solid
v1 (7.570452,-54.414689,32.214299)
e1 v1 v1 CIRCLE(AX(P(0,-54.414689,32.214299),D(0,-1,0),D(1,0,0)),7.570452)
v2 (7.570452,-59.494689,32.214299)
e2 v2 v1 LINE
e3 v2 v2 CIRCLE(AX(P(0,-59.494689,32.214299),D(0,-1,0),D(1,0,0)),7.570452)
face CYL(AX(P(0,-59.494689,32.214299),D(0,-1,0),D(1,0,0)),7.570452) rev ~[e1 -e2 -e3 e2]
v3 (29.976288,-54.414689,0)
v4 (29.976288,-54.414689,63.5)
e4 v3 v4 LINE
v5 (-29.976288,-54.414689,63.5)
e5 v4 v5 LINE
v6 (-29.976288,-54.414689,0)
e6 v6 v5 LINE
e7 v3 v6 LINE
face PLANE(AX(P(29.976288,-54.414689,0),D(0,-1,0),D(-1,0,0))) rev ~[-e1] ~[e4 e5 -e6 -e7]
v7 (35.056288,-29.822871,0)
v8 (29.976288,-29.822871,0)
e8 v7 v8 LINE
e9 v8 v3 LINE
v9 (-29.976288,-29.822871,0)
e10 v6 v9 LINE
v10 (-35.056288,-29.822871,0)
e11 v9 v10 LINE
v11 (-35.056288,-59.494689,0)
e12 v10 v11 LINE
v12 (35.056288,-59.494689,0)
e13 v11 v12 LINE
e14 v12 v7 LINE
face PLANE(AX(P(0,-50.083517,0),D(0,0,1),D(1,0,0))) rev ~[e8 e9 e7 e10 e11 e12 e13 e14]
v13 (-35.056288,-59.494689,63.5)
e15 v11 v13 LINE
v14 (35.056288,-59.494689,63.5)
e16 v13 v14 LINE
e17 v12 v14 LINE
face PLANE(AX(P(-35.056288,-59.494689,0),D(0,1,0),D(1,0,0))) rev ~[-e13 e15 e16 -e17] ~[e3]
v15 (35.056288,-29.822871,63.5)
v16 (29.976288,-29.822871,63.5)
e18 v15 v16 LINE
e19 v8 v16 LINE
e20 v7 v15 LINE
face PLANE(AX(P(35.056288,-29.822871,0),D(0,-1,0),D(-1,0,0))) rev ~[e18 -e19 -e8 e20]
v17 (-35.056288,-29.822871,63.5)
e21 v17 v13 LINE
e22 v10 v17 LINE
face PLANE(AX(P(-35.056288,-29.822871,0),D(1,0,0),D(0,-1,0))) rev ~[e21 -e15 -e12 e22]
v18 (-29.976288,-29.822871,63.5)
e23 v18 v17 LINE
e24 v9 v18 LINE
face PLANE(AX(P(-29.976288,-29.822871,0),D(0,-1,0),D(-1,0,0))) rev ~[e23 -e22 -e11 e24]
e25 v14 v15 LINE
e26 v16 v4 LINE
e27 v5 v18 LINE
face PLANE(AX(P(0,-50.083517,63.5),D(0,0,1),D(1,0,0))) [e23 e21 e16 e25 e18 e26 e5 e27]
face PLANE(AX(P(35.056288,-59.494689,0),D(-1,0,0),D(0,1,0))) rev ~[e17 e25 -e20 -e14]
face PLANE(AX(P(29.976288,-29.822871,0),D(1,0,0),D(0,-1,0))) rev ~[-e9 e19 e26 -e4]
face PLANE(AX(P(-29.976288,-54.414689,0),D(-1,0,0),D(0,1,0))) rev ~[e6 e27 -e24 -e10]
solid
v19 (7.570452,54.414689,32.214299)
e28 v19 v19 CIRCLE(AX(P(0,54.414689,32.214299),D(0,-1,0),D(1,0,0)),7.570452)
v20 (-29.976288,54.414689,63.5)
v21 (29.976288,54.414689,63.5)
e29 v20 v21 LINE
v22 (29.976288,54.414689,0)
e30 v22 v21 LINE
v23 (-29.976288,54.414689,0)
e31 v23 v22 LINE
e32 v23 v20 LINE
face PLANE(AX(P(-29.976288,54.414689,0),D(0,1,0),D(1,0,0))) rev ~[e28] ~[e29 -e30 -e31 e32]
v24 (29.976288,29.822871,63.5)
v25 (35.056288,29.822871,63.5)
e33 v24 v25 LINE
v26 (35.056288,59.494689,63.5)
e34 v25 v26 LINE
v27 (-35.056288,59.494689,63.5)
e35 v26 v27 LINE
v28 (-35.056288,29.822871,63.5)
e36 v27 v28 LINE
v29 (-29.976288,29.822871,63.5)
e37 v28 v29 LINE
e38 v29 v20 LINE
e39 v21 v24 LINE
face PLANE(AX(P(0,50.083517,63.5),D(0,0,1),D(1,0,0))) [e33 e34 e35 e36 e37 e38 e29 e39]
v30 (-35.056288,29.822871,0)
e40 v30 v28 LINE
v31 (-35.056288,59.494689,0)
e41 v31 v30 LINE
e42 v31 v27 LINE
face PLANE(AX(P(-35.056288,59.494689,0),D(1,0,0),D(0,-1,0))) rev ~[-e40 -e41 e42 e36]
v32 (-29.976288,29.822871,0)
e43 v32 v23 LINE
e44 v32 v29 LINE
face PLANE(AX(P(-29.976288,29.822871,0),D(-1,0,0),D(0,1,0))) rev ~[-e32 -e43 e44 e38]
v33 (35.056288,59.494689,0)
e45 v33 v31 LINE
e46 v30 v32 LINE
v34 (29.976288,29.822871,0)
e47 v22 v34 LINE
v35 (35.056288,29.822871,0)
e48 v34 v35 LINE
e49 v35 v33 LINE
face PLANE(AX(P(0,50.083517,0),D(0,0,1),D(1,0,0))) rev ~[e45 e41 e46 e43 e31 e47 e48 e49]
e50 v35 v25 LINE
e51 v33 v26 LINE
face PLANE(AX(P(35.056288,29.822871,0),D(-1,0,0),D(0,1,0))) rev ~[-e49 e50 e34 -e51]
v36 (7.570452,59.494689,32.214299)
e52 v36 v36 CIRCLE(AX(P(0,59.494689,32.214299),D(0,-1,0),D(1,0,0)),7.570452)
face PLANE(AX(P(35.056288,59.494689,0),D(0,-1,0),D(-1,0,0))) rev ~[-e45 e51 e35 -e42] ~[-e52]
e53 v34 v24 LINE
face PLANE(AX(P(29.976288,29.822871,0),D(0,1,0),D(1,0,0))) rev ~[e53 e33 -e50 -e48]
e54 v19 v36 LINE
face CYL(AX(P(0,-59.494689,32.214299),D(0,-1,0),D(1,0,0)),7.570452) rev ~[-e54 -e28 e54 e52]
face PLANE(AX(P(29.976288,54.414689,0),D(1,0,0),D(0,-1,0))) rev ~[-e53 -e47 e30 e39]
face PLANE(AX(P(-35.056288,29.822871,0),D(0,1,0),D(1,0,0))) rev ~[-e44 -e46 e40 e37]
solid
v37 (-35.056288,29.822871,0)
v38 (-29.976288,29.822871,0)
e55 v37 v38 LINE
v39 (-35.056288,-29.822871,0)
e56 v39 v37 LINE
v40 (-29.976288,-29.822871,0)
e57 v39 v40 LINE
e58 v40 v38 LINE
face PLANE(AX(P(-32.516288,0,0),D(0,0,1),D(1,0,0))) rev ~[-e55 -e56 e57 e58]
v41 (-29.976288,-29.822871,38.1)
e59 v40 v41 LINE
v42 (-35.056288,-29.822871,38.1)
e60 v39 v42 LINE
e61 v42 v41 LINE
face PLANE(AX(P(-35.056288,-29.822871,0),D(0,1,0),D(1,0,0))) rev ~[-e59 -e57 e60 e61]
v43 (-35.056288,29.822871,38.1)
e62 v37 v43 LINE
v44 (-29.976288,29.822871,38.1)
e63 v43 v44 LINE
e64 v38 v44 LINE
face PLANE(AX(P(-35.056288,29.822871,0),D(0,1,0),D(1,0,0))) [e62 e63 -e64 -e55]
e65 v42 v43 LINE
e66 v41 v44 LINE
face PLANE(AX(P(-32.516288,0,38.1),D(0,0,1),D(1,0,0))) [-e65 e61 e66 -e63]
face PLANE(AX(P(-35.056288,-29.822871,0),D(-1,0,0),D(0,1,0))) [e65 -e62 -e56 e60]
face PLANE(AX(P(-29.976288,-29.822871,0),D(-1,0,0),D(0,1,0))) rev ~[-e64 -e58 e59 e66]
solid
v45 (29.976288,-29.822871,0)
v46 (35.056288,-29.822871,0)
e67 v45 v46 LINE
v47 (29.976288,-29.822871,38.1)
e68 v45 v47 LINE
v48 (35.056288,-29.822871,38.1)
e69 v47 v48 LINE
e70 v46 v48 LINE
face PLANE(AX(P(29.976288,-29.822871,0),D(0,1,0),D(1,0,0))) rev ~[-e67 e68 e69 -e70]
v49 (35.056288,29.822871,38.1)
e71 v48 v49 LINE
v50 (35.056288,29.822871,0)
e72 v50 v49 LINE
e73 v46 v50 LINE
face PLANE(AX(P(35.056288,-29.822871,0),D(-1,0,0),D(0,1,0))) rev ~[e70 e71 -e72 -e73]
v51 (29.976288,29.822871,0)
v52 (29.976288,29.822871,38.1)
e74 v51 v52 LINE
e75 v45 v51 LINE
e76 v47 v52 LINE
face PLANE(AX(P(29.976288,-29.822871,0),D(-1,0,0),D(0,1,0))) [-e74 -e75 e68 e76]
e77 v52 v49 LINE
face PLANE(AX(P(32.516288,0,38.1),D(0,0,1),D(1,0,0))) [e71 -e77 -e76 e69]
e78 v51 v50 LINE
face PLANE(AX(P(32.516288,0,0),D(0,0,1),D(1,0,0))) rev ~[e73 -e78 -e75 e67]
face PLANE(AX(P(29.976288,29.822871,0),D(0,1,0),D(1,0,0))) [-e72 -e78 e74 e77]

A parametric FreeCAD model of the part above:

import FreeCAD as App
import Part
import Sketcher
Q = App.Units.Quantity


def add_polygon(sketch, points):
    """Adds a closed chain of lines whose ends are joined by coincident constraints."""
    first, n = sketch.GeometryCount, len(points)
    for a, b in zip(points, points[1:] + points[:1]):
        sketch.addGeometry(Part.LineSegment(App.Vector(*a, 0), App.Vector(*b, 0)), False)
    for i in range(n):
        sketch.addConstraint(Sketcher.Constraint("Coincident", first + i, 2, first + (i + 1) % n, 1))

doc = App.newDocument("Part")
body = doc.addObject("PartDesign::Body", "Body")
body.AllowCompound = True

# Sketch on XY plane
sketch1 = doc.addObject("Sketcher::SketchObject", "Sketch")
body.addObject(sketch1)
sketch1.AttachmentSupport = (doc.XY_Plane, [""])
sketch1.MapMode = "FlatFace"
add_polygon(sketch1, [(30, 30), (35, 30), (35, 59), (-35, 59), (-35, 30), (-30, 30), (-30, 54), (30, 54)])  # lines 0-7
add_polygon(sketch1, [(-35, -59), (35, -59), (35, -30), (30, -30), (30, -54), (-30, -54), (-30, -30), (-35, -30)])  # lines 8-15
sketch1.addConstraint([
    Sketcher.Constraint("Horizontal", 0),
    Sketcher.Constraint("Vertical", 1),
    Sketcher.Constraint("Horizontal", 2),
    Sketcher.Constraint("Vertical", 3),
    Sketcher.Constraint("Horizontal", 4),
    Sketcher.Constraint("Vertical", 5),
    Sketcher.Constraint("Horizontal", 6),
    Sketcher.Constraint("Vertical", 7),
    Sketcher.Constraint("Horizontal", 8),
    Sketcher.Constraint("Vertical", 9),
    Sketcher.Constraint("Horizontal", 10),
    Sketcher.Constraint("Vertical", 11),
    Sketcher.Constraint("Horizontal", 12),
    Sketcher.Constraint("Vertical", 13),
    Sketcher.Constraint("Horizontal", 14),
    Sketcher.Constraint("Vertical", 15),
    Sketcher.Constraint("Symmetric", 2, 2, 8, 2, -1, 1),
    Sketcher.Constraint("Symmetric", 4, 2, 10, 2, -1, 1),
    Sketcher.Constraint("Symmetric", 6, 2, 12, 2, -1, 1),
    Sketcher.Constraint("Symmetric", 0, 2, 14, 2, -1, 1),
    Sketcher.Constraint("Symmetric", 0, 2, 3, 2, -2),
    Sketcher.Constraint("Vertical", 7, 2, 10, 2),
    Sketcher.Constraint("DistanceX", 0, 1, 0, 2, Q("0.2 in")),
    Sketcher.Constraint("DistanceY", 5, 2, 2, 2, Q("0.2 in")),
    Sketcher.Constraint("DistanceY", 1, 1, 1, 2, Q("29.671818 mm")),
    Sketcher.Constraint("DistanceX", 2, 2, 2, 1, Q("70.112576 mm")),
    Sketcher.Constraint("DistanceY", -1, 1, 0, 2, Q("29.822871 mm")),
])
pad1 = doc.addObject("PartDesign::Pad", "Pad")
body.addObject(pad1)
pad1.Profile = sketch1
pad1.Length = Q("2.5 in")

# Sketch on XZ plane
sketch2 = doc.addObject("Sketcher::SketchObject", "Sketch001")
body.addObject(sketch2)
sketch2.AttachmentSupport = (doc.XZ_Plane, [""])
sketch2.MapMode = "FlatFace"
sketch2.AttachmentOffset = App.Placement(App.Vector(0, 0, 59.494689), App.Rotation())
sketch2.addGeometry(Part.Circle(App.Vector(0, 32, 0), App.Vector(0, 0, 1), 8), False)
sketch2.addConstraint([
    Sketcher.Constraint("PointOnObject", 0, 3, -2),
    Sketcher.Constraint("Diameter", 0, Q("15.140904 mm")),
    Sketcher.Constraint("DistanceY", -1, 1, 0, 3, Q("32.214299 mm")),
])
pocket1 = doc.addObject("PartDesign::Pocket", "Pocket")
body.addObject(pocket1)
pocket1.Profile = sketch2
pocket1.Length = Q("4.89 in")
body2 = doc.addObject("PartDesign::Body", "Body001")
body2.AllowCompound = True

# Sketch on XY plane
sketch3 = doc.addObject("Sketcher::SketchObject", "Sketch002")
body2.addObject(sketch3)
sketch3.AttachmentSupport = (doc.getObject("XY_Plane001"), [""])
sketch3.MapMode = "FlatFace"
add_polygon(sketch3, [(-35, 30), (-35, -30), (-30, -30), (-30, 30)])  # lines 0-3
add_polygon(sketch3, [(30, 30), (30, -30), (35, -30), (35, 30)])  # lines 4-7
sketch3.addConstraint([
    Sketcher.Constraint("Vertical", 0),
    Sketcher.Constraint("Horizontal", 1),
    Sketcher.Constraint("Vertical", 2),
    Sketcher.Constraint("Horizontal", 3),
    Sketcher.Constraint("Vertical", 4),
    Sketcher.Constraint("Horizontal", 5),
    Sketcher.Constraint("Vertical", 6),
    Sketcher.Constraint("Horizontal", 7),
    Sketcher.Constraint("Symmetric", 2, 2, 4, 2, -1, 1),
    Sketcher.Constraint("Symmetric", 0, 2, 6, 2, -1, 1),
    Sketcher.Constraint("Horizontal", 1, 2, 4, 2),
    Sketcher.Constraint("DistanceX", 1, 1, 1, 2, Q("0.2 in")),
    Sketcher.Constraint("DistanceY", 0, 2, 0, 1, Q("59.645742 mm")),
    Sketcher.Constraint("DistanceX", 0, 2, -1, 1, Q("35.056288 mm")),
])
pad2 = doc.addObject("PartDesign::Pad", "Pad001")
body2.addObject(pad2)
pad2.Profile = sketch3
pad2.Length = Q("1.5 in")

doc.recompute()
